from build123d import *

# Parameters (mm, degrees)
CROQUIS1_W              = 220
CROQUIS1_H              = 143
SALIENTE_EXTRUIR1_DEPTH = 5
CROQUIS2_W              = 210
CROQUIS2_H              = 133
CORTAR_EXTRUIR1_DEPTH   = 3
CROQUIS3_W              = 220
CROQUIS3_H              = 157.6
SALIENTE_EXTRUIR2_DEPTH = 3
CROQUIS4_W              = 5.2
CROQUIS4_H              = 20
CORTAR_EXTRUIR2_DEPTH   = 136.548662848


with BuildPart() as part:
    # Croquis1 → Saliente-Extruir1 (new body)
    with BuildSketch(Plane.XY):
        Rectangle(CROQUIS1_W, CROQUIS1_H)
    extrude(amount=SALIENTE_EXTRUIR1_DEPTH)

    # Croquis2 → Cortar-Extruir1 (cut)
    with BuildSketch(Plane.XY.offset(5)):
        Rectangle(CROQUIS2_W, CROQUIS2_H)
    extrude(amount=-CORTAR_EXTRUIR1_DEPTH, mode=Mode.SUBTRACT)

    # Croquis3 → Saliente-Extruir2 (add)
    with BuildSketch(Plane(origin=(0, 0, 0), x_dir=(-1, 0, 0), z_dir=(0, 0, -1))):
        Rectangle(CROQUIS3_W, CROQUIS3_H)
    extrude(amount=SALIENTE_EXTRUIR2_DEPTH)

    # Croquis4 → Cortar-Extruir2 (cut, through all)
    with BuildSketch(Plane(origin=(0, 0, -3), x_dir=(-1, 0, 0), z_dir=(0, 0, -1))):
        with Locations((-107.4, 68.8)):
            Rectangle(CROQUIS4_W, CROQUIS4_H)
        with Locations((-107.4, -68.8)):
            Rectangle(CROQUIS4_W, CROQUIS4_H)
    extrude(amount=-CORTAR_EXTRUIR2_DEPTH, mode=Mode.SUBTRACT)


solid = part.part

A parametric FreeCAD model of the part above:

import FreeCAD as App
import Part
import Sketcher

V = App.Vector
Q = App.Units.Quantity

doc = App.newDocument("Part")
body = doc.addObject("PartDesign::Body", "Body")

# Sketch on XY plane
sketch1 = doc.addObject("Sketcher::SketchObject", "Sketch")
body.addObject(sketch1)
sketch1.AttachmentSupport = (doc.XY_Plane, [""])
sketch1.MapMode = "FlatFace"
sketch1.addGeometry([
    Part.LineSegment(V(-110, 71.5, 0), V(-110, -71.5, 0)),
    Part.LineSegment(V(-110, -71.5, 0), V(110, -71.5, 0)),
    Part.LineSegment(V(110, -71.5, 0), V(110, 71.5, 0)),
    Part.LineSegment(V(110, 71.5, 0), V(-110, 71.5, 0)),
], False)
sketch1.addConstraint([
    Sketcher.Constraint("Coincident", 0, 2, 1, 1),
    Sketcher.Constraint("Coincident", 1, 2, 2, 1),
    Sketcher.Constraint("Coincident", 2, 2, 3, 1),
    Sketcher.Constraint("Coincident", 3, 2, 0, 1),
    Sketcher.Constraint("Vertical", 0),
    Sketcher.Constraint("Horizontal", 1),
    Sketcher.Constraint("Vertical", 2),
    Sketcher.Constraint("Horizontal", 3),
    Sketcher.Constraint("Symmetric", 0, 2, 2, 2, -1, 1),
    Sketcher.Constraint("DistanceX", 1, 1, 1, 2, Q("220 mm")),
    Sketcher.Constraint("DistanceY", 0, 2, 0, 1, Q("143 mm")),
])
pad1 = doc.addObject("PartDesign::Pad", "Pad")
body.addObject(pad1)
pad1.Profile = sketch1
pad1.Length = 5

# Sketch on XY plane
sketch2 = doc.addObject("Sketcher::SketchObject", "Sketch001")
body.addObject(sketch2)
sketch2.AttachmentSupport = (doc.XY_Plane, [""])
sketch2.MapMode = "FlatFace"
sketch2.AttachmentOffset = App.Placement(V(0, 0, 5), App.Rotation())
sketch2.addGeometry([
    Part.LineSegment(V(-105, 66.5, 0), V(-105, -66.5, 0)),
    Part.LineSegment(V(-105, -66.5, 0), V(105, -66.5, 0)),
    Part.LineSegment(V(105, -66.5, 0), V(105, 66.5, 0)),
    Part.LineSegment(V(105, 66.5, 0), V(-105, 66.5, 0)),
], False)
sketch2.addConstraint([
    Sketcher.Constraint("Coincident", 0, 2, 1, 1),
    Sketcher.Constraint("Coincident", 1, 2, 2, 1),
    Sketcher.Constraint("Coincident", 2, 2, 3, 1),
    Sketcher.Constraint("Coincident", 3, 2, 0, 1),
    Sketcher.Constraint("Vertical", 0),
    Sketcher.Constraint("Horizontal", 1),
    Sketcher.Constraint("Vertical", 2),
    Sketcher.Constraint("Horizontal", 3),
    Sketcher.Constraint("Symmetric", 0, 2, 2, 2, -1, 1),
    Sketcher.Constraint("DistanceX", 1, 1, 1, 2, Q("210 mm")),
    Sketcher.Constraint("DistanceY", 0, 2, 0, 1, Q("133 mm")),
])
pocket1 = doc.addObject("PartDesign::Pocket", "Pocket")
body.addObject(pocket1)
pocket1.Profile = sketch2
pocket1.Length = 3

# Sketch on XY plane
sketch3 = doc.addObject("Sketcher::SketchObject", "Sketch002")
body.addObject(sketch3)
sketch3.AttachmentSupport = (doc.XY_Plane, [""])
sketch3.MapMode = "FlatFace"
sketch3.addGeometry([
    Part.LineSegment(V(110, 78.8, 0), V(110, -78.8, 0)),
    Part.LineSegment(V(110, -78.8, 0), V(-110, -78.8, 0)),
    Part.LineSegment(V(-110, -78.8, 0), V(-110, 78.8, 0)),
    Part.LineSegment(V(-110, 78.8, 0), V(110, 78.8, 0)),
], False)
sketch3.addConstraint([
    Sketcher.Constraint("Coincident", 0, 2, 1, 1),
    Sketcher.Constraint("Coincident", 1, 2, 2, 1),
    Sketcher.Constraint("Coincident", 2, 2, 3, 1),
    Sketcher.Constraint("Coincident", 3, 2, 0, 1),
    Sketcher.Constraint("Vertical", 0),
    Sketcher.Constraint("Horizontal", 1),
    Sketcher.Constraint("Vertical", 2),
    Sketcher.Constraint("Horizontal", 3),
    Sketcher.Constraint("Symmetric", 0, 2, 2, 2, -1, 1),
    Sketcher.Constraint("DistanceX", 1, 2, 1, 1, Q("220 mm")),
    Sketcher.Constraint("DistanceY", 0, 2, 0, 1, Q("157.6 mm")),
])
pad2 = doc.addObject("PartDesign::Pad", "Pad001")
body.addObject(pad2)
pad2.Profile = sketch3
pad2.Length = 3
pad2.Reversed = True

# Sketch on XY plane
sketch4 = doc.addObject("Sketcher::SketchObject", "Sketch003")
body.addObject(sketch4)
sketch4.AttachmentSupport = (doc.XY_Plane, [""])
sketch4.MapMode = "FlatFace"
sketch4.AttachmentOffset = App.Placement(V(0, 0, -3), App.Rotation())
sketch4.addGeometry([
    Part.LineSegment(V(110, 78.8, 0), V(110, 58.8, 0)),  # 0
    Part.LineSegment(V(110, 58.8, 0), V(104.8, 58.8, 0)),  # 1
    Part.LineSegment(V(104.8, 58.8, 0), V(104.8, 78.8, 0)),  # 2
    Part.LineSegment(V(104.8, 78.8, 0), V(110, 78.8, 0)),  # 3
    Part.LineSegment(V(110, -58.8, 0), V(110, -78.8, 0)),  # 4
    Part.LineSegment(V(110, -78.8, 0), V(104.8, -78.8, 0)),  # 5
    Part.LineSegment(V(104.8, -78.8, 0), V(104.8, -58.8, 0)),  # 6
    Part.LineSegment(V(104.8, -58.8, 0), V(110, -58.8, 0)),  # 7
], False)
sketch4.addConstraint([
    Sketcher.Constraint("Coincident", 0, 2, 1, 1),
    Sketcher.Constraint("Coincident", 1, 2, 2, 1),
    Sketcher.Constraint("Coincident", 2, 2, 3, 1),
    Sketcher.Constraint("Coincident", 3, 2, 0, 1),
    Sketcher.Constraint("Coincident", 4, 2, 5, 1),
    Sketcher.Constraint("Coincident", 5, 2, 6, 1),
    Sketcher.Constraint("Coincident", 6, 2, 7, 1),
    Sketcher.Constraint("Coincident", 7, 2, 4, 1),
    Sketcher.Constraint("Vertical", 0),
    Sketcher.Constraint("Horizontal", 1),
    Sketcher.Constraint("Vertical", 2),
    Sketcher.Constraint("Horizontal", 3),
    Sketcher.Constraint("Vertical", 4),
    Sketcher.Constraint("Horizontal", 5),
    Sketcher.Constraint("Vertical", 6),
    Sketcher.Constraint("Horizontal", 7),
    Sketcher.Constraint("Symmetric", 3, 2, 4, 2, -1),
    Sketcher.Constraint("Symmetric", 1, 2, 6, 2, -1),
    Sketcher.Constraint("DistanceY", 0, 2, 0, 1, Q("20 mm")),
    Sketcher.Constraint("DistanceX", 1, 2, 1, 1, Q("5.2 mm")),
    Sketcher.Constraint("DistanceX", -1, 1, 0, 2, Q("110 mm")),
    Sketcher.Constraint("DistanceY", -1, 1, 0, 2, Q("58.8 mm")),
])
pocket2 = doc.addObject("PartDesign::Pocket", "Pocket001")
body.addObject(pocket2)
pocket2.Profile = sketch4
pocket2.Type = "ThroughAll"
pocket2.Reversed = True

doc.recompute()
